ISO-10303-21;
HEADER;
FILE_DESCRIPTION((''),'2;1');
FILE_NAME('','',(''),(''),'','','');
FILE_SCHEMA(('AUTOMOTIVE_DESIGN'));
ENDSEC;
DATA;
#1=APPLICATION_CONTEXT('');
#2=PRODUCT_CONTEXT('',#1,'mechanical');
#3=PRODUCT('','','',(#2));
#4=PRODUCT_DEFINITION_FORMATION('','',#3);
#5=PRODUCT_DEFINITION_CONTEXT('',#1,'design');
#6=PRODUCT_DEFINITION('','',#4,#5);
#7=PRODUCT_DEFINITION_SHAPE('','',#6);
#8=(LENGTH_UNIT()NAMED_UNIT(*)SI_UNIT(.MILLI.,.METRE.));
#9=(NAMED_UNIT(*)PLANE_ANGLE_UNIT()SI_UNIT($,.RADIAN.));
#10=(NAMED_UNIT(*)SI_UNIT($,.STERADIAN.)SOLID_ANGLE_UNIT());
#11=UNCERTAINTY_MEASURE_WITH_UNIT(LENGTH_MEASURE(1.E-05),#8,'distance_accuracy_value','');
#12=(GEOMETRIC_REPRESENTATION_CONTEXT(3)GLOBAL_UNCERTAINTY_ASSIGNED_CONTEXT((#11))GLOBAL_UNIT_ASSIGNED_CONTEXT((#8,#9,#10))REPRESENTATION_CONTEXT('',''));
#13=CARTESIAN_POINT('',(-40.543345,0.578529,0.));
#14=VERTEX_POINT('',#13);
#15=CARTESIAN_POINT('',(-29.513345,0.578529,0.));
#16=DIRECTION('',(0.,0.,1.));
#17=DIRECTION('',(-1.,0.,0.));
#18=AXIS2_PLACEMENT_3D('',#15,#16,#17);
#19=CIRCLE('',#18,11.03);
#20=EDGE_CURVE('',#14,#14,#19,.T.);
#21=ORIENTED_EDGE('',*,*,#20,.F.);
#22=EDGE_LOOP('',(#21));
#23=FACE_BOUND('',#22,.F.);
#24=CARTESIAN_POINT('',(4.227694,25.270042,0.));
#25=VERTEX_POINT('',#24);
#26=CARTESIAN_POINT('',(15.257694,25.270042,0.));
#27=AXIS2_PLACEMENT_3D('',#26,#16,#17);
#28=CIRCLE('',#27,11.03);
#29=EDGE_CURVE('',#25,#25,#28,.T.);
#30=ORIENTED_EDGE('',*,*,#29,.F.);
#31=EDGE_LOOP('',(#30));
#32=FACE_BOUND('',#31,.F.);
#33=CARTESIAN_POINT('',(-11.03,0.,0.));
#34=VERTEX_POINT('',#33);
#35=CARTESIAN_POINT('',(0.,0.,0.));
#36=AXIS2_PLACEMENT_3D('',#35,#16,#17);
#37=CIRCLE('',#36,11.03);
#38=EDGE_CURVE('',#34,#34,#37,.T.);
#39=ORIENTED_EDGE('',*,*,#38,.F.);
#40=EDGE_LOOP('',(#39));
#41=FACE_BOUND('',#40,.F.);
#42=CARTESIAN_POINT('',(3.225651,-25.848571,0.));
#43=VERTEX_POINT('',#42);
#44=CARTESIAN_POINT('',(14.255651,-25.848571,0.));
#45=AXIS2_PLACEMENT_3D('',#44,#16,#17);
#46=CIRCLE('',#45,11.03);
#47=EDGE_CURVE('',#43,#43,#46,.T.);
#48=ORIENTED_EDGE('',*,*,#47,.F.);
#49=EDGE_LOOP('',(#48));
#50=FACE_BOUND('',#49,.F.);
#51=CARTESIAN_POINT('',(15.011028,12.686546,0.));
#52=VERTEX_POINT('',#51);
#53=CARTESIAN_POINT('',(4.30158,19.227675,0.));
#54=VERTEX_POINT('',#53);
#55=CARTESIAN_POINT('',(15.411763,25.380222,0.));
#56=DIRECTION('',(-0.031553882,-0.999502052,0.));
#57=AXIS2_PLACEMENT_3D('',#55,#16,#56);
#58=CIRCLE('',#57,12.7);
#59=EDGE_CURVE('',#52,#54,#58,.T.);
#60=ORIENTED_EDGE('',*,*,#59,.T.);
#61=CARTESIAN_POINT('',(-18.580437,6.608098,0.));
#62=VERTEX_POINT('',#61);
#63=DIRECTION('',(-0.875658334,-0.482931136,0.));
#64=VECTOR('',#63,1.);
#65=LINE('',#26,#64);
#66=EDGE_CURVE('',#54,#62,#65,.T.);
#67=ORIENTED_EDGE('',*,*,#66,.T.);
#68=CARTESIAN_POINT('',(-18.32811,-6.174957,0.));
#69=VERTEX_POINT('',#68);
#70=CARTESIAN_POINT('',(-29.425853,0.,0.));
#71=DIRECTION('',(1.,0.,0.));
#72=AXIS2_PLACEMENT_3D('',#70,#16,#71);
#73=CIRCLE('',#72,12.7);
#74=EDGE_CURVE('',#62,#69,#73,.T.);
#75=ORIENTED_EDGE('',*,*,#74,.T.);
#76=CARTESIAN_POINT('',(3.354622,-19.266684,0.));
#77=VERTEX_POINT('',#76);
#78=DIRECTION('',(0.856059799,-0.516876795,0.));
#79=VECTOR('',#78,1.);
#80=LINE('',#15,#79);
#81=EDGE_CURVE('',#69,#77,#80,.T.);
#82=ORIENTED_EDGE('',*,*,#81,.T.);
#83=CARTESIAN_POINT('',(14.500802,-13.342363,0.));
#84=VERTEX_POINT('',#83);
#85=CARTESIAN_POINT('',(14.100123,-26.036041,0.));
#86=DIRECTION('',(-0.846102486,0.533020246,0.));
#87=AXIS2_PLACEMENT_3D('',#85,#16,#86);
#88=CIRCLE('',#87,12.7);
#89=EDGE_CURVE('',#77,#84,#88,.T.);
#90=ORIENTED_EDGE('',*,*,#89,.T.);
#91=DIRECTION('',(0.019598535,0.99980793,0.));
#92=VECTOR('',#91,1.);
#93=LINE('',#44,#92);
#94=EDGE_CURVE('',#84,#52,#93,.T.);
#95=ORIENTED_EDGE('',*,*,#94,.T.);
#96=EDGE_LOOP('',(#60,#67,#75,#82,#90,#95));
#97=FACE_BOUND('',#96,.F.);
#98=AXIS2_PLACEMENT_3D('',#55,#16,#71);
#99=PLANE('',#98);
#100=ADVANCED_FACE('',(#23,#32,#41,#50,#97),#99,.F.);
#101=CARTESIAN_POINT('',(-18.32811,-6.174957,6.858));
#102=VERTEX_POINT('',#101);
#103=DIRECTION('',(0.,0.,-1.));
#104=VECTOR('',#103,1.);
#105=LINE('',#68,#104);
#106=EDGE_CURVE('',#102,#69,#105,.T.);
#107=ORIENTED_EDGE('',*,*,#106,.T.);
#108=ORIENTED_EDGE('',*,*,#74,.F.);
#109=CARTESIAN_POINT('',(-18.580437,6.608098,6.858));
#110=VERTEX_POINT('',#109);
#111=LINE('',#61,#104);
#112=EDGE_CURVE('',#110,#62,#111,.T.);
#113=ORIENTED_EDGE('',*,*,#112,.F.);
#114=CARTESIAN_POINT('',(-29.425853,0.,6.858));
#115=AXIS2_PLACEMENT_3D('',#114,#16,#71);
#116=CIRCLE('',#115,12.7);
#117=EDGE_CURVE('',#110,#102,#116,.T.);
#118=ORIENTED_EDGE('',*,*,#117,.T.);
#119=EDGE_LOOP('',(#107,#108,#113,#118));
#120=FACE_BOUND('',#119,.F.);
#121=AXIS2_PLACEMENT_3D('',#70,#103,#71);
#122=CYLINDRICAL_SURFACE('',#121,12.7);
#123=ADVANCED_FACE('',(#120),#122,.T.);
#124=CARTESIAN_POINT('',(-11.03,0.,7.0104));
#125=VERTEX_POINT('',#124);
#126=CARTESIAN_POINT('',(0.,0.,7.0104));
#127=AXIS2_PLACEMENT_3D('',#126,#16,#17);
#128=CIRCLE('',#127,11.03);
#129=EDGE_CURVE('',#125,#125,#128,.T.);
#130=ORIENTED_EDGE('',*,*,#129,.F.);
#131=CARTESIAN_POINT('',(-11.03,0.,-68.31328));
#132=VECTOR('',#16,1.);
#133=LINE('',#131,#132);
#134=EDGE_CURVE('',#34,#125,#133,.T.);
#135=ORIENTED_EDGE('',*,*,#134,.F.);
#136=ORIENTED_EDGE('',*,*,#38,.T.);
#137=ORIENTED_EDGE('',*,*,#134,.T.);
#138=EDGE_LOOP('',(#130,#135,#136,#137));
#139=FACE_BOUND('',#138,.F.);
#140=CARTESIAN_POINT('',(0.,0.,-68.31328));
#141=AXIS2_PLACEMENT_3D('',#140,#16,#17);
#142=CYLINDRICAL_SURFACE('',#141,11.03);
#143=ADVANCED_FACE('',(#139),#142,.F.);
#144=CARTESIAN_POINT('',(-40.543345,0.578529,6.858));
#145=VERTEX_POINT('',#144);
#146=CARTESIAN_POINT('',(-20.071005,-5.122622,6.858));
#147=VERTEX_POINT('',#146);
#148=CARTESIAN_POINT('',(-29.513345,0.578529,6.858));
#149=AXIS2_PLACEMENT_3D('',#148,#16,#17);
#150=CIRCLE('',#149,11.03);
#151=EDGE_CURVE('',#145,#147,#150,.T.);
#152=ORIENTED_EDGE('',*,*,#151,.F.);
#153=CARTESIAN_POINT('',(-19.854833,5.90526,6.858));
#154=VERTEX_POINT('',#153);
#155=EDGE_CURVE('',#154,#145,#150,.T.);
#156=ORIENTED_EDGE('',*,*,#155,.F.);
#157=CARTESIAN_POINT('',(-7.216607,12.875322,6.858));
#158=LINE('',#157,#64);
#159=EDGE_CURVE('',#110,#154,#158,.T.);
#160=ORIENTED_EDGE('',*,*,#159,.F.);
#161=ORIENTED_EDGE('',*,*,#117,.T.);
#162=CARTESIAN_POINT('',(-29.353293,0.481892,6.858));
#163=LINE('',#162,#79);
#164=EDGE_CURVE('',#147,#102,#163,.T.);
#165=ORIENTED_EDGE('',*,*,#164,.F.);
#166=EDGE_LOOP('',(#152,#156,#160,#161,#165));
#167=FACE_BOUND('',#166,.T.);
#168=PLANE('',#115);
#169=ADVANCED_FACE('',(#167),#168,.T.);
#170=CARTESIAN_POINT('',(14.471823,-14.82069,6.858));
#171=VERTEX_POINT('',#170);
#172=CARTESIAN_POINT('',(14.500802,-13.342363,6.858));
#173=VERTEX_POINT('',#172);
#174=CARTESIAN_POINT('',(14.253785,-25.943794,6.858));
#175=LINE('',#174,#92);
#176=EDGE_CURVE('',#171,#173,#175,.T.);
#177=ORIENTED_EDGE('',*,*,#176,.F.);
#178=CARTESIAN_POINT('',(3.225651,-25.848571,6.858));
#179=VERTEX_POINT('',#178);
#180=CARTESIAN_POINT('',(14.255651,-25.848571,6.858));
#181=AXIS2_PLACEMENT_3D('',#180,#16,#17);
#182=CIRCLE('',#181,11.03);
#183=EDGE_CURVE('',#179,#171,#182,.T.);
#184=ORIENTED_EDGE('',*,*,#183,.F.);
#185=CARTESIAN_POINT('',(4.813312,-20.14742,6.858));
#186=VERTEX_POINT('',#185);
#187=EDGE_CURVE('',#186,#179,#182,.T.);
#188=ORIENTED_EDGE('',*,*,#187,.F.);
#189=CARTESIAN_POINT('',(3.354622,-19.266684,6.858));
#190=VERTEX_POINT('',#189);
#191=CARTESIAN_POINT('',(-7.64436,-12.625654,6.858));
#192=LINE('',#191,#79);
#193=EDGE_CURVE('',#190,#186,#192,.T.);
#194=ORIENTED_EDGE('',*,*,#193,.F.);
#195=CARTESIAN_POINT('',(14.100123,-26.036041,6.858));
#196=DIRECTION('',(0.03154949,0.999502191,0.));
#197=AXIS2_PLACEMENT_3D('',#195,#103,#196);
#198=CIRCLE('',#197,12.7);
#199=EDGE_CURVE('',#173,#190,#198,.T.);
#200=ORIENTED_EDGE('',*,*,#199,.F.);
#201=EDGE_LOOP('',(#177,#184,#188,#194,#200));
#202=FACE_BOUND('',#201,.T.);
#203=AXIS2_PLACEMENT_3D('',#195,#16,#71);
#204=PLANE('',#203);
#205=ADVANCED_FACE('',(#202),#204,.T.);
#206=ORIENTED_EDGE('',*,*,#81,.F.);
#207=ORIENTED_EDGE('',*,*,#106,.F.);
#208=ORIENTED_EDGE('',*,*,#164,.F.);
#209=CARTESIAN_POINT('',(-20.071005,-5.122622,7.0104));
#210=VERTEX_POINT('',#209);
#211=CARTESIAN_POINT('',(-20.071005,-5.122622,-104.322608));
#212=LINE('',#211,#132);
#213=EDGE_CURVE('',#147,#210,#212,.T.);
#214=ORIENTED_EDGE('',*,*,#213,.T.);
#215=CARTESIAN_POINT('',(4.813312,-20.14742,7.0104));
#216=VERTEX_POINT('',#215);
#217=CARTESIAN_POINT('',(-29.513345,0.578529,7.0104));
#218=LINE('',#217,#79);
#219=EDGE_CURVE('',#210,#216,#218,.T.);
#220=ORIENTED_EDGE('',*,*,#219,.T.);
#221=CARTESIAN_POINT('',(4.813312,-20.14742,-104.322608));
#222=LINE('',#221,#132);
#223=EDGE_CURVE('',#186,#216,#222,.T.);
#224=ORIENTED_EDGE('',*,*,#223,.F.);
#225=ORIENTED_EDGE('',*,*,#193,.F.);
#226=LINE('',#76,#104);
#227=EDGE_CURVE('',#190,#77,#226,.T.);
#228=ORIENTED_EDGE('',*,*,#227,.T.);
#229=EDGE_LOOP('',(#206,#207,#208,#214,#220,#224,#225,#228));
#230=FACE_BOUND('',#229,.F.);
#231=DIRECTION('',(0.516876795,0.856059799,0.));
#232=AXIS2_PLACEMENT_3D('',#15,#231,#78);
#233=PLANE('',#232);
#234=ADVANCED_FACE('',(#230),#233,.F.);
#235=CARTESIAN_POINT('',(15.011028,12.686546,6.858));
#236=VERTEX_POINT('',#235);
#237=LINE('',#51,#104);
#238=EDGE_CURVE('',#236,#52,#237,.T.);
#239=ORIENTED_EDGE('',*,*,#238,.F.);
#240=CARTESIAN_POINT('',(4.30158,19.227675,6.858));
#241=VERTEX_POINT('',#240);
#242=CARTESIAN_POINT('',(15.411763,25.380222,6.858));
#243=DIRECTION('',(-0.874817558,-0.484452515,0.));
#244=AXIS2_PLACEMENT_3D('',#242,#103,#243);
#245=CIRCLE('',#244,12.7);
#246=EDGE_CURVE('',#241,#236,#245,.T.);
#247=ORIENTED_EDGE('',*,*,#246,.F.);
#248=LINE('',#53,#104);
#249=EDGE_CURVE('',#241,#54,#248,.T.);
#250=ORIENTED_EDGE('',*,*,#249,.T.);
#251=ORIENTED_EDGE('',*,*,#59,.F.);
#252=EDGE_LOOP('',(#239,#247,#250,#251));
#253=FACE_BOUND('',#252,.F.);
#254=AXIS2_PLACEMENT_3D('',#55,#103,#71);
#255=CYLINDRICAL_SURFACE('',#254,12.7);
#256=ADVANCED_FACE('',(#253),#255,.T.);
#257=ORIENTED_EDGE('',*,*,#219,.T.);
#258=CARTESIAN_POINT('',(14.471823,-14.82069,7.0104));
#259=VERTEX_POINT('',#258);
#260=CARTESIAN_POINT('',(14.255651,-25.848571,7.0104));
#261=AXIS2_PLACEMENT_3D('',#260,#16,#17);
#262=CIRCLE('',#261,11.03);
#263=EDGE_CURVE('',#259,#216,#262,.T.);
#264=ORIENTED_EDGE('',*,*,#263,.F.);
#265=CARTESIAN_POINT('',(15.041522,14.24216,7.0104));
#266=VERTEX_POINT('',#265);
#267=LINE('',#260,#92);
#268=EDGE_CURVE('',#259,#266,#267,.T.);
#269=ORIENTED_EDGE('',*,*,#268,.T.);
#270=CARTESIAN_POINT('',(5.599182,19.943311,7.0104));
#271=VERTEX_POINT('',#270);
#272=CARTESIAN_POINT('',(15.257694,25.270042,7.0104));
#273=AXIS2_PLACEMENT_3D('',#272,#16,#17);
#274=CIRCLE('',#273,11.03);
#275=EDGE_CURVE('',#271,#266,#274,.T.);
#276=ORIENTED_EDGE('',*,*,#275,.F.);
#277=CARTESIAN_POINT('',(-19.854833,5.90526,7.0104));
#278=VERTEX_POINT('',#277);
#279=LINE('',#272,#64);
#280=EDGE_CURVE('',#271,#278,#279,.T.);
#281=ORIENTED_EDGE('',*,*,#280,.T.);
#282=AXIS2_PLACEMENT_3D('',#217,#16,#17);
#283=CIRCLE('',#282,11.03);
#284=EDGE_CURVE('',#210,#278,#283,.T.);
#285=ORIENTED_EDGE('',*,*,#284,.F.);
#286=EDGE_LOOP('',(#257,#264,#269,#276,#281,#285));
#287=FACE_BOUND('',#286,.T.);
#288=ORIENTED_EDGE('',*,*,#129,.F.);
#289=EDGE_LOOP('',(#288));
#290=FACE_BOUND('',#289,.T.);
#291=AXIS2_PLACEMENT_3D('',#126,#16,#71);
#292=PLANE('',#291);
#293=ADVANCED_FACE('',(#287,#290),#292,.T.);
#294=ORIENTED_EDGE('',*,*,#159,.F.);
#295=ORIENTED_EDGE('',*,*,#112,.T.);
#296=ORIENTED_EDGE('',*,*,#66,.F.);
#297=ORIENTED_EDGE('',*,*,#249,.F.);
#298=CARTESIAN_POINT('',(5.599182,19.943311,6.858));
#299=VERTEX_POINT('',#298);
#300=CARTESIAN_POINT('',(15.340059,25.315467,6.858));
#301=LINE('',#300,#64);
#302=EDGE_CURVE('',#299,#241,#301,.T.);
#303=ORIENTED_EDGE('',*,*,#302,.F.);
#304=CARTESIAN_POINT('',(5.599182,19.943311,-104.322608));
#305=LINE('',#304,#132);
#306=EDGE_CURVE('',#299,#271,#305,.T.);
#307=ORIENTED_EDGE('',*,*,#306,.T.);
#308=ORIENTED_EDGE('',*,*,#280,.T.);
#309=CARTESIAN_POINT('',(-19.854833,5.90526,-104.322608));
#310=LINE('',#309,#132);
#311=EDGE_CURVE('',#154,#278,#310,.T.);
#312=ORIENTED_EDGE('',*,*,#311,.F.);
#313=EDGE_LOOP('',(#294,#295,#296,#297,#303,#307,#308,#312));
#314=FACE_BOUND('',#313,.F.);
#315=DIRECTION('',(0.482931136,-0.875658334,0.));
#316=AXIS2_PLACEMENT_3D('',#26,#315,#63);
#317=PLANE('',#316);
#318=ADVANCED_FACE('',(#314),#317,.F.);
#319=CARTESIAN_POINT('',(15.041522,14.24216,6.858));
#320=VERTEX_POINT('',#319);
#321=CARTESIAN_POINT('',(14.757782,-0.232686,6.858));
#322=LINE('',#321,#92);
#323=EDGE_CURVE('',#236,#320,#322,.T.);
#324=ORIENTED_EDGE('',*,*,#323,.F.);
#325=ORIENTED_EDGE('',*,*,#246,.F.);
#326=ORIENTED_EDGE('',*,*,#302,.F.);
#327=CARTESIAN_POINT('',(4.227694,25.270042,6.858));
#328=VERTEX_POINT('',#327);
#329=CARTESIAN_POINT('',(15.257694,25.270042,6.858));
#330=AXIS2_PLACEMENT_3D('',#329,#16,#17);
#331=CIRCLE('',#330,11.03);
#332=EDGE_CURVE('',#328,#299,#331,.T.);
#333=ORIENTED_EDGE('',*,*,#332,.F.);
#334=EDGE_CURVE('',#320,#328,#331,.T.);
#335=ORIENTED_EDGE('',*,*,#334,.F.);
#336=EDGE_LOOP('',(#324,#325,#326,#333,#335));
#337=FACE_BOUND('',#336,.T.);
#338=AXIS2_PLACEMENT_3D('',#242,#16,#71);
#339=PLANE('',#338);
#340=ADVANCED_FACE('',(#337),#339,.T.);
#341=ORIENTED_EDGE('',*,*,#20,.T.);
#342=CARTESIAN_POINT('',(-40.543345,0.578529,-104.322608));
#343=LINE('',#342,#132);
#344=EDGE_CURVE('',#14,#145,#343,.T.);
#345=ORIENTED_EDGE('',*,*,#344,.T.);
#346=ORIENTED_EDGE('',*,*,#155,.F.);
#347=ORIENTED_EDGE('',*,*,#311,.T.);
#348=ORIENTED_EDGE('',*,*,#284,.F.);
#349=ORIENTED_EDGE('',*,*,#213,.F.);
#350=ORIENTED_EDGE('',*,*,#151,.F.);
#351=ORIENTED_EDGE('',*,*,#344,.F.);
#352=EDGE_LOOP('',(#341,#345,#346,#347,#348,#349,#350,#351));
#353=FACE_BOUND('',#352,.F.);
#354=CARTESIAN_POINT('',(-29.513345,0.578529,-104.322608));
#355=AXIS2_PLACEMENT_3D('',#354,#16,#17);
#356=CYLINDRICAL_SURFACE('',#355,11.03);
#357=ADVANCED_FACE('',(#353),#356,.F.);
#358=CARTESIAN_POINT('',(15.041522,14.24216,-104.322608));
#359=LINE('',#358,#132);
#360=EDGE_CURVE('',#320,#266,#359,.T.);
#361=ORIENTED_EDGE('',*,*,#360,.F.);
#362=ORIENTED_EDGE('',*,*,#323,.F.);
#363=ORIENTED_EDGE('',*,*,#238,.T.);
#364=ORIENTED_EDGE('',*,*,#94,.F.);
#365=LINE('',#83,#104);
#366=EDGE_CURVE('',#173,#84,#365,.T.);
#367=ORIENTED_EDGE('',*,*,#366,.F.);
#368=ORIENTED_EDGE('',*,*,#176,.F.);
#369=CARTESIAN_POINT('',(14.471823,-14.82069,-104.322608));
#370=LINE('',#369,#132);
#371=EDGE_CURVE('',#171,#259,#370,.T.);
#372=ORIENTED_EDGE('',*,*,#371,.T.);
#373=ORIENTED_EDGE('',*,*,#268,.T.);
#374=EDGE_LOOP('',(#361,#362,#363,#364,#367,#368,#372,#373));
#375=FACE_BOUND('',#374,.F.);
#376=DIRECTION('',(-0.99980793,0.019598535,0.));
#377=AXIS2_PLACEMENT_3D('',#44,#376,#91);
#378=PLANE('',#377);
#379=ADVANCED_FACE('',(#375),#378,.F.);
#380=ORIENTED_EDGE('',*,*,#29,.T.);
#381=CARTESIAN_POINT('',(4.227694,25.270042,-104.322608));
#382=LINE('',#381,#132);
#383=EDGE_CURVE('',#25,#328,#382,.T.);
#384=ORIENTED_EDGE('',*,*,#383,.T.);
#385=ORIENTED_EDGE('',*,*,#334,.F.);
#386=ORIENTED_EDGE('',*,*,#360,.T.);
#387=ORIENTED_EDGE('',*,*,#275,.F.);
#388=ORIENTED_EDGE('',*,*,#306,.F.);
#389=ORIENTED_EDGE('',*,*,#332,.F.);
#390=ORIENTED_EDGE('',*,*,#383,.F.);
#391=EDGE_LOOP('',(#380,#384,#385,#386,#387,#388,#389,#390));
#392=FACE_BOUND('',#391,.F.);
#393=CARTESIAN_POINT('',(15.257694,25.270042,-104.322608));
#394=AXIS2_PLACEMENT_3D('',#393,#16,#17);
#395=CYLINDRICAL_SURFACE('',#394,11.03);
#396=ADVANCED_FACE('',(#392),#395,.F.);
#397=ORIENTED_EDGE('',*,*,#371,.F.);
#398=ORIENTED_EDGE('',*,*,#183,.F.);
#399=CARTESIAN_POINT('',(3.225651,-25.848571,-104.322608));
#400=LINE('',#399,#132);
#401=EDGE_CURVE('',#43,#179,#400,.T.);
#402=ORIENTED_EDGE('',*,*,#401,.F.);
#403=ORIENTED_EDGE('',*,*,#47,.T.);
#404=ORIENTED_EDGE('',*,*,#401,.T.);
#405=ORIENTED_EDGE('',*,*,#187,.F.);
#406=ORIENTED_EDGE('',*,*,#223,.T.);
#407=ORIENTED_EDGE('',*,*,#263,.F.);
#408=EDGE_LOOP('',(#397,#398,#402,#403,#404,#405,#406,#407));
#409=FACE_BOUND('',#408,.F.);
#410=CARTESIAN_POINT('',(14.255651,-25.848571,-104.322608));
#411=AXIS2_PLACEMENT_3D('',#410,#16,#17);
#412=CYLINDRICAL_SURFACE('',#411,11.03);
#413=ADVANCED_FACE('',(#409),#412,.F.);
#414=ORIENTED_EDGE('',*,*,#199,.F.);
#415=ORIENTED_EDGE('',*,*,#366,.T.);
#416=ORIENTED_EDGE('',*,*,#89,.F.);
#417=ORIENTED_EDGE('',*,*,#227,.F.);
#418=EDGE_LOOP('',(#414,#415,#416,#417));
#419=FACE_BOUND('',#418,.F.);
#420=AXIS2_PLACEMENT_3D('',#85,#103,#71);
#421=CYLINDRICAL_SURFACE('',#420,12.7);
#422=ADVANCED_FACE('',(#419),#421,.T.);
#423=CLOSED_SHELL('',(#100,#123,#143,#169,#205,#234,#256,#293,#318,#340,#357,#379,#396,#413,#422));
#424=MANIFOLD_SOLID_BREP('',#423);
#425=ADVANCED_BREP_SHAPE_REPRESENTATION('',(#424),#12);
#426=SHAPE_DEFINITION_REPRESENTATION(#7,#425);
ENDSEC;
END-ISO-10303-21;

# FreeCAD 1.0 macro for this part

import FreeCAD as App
import Part
import Sketcher
from FreeCAD import Vector
Q = App.Units.Quantity


def add_polygon(sketch, points):
    """Adds a closed chain of lines whose ends are joined by coincident constraints."""
    first, n = sketch.GeometryCount, len(points)
    for a, b in zip(points, points[1:] + points[:1]):
        sketch.addGeometry(Part.LineSegment(App.Vector(*a, 0), App.Vector(*b, 0)), False)
    for i in range(n):
        sketch.addConstraint(Sketcher.Constraint("Coincident", first + i, 2, first + (i + 1) % n, 1))

doc = App.newDocument("Part")
body = doc.addObject("PartDesign::Body", "Body")

sketch1 = body.newObject("Sketcher::SketchObject", "Sketch")
sketch1.AttachmentSupport = (doc.getObject("XY_Plane"), [""])
sketch1.MapMode = "FlatFace"
add_polygon(sketch1, [(15, 25), (-30, 1), (14, -26)])
sketch1.addConstraint([
    Sketcher.Constraint("Equal", 0, 1),
    Sketcher.Constraint("Equal", 1, 2),
    Sketcher.Constraint("DistanceY", 1, 2, 0, 2, Q("26.427101 mm")),
    Sketcher.Constraint("DistanceY", -1, 1, 0, 2, Q("0.578529 mm")),
    Sketcher.Constraint("DistanceX", -1, 1, 1, 2, Q("14.255651 mm")),
    Sketcher.Constraint("DistanceY", -1, 1, 2, 2, Q("25.270042 mm")),
])
pad1 = body.newObject("PartDesign::Pad", "Pad")
pad1.Profile = sketch1
pad1.Length = Q("0.276 in")

sketch2 = body.newObject("Sketcher::SketchObject", "Sketch001")
sketch2.AttachmentSupport = (doc.getObject("XY_Plane"), [""])
sketch2.MapMode = "FlatFace"
sketch2.addGeometry(Part.Circle(Vector(0, 0, 0), Vector(0, 0, 1), 11), False)
sketch2.addConstraint([
    Sketcher.Constraint("Coincident", 0, 3, -1, 1),
    Sketcher.Constraint("Diameter", 0, Q("22.06 mm")),
])
doc.recompute()
hole = body.newObject("PartDesign::Hole", "Hole")
hole.Profile = sketch2
hole.ThreadType = "None"
hole.Diameter = 22.06
hole.DepthType = "ThroughAll"
hole.Reversed = True

sketch3 = body.newObject("Sketcher::SketchObject", "Sketch002")
sketch3.AttachmentSupport = (doc.getObject("XY_Plane"), [""])
sketch3.MapMode = "FlatFace"
sketch3.addGeometry(Part.Circle(Vector(14, -26, 0), Vector(0, 0, 1), 13), False)
sketch3.addConstraint([
    Sketcher.Constraint("Diameter", 0, Q("1 in")),
    Sketcher.Constraint("DistanceY", 0, 3, -1, 1, Q("26.036041 mm")),
    Sketcher.Constraint("DistanceX", -1, 1, 0, 3, Q("14.100123 mm")),
])
pad2 = body.newObject("PartDesign::Pad", "Pad001")
pad2.Profile = sketch3
pad2.Length = Q("0.27 in")

sketch4 = body.newObject("Sketcher::SketchObject", "Sketch003")
sketch4.AttachmentSupport = (doc.getObject("XY_Plane"), [""])
sketch4.MapMode = "FlatFace"
sketch4.addGeometry(Part.Circle(Vector(15, 25, 0), Vector(0, 0, 1), 13), False)
sketch4.addConstraint([
    Sketcher.Constraint("Diameter", 0, Q("1 in")),
    Sketcher.Constraint("DistanceX", -1, 1, 0, 3, Q("15.411763 mm")),
    Sketcher.Constraint("DistanceY", -1, 1, 0, 3, Q("25.380222 mm")),
])
pad3 = body.newObject("PartDesign::Pad", "Pad002")
pad3.Profile = sketch4
pad3.Length = Q("0.27 in")

sketch5 = body.newObject("Sketcher::SketchObject", "Sketch004")
sketch5.AttachmentSupport = (doc.getObject("XY_Plane"), [""])
sketch5.MapMode = "FlatFace"
sketch5.addGeometry(Part.Circle(Vector(-29, 0, 0), Vector(0, 0, 1), 13), False)
sketch5.addConstraint([
    Sketcher.Constraint("PointOnObject", 0, 3, -1),
    Sketcher.Constraint("Diameter", 0, Q("1 in")),
    Sketcher.Constraint("DistanceX", 0, 3, -1, 1, Q("29.425853 mm")),
])
pad4 = body.newObject("PartDesign::Pad", "Pad003")
pad4.Profile = sketch5
pad4.Length = Q("0.27 in")

sketch6 = body.newObject("Sketcher::SketchObject", "Sketch005")
sketch6.AttachmentSupport = (doc.getObject("XY_Plane"), [""])
sketch6.MapMode = "FlatFace"
sketch6.addGeometry(Part.Circle(Vector(15, 25, 0), Vector(0, 0, 1), 11), False)
sketch6.addConstraint([
    Sketcher.Constraint("Diameter", 0, Q("22.06 mm")),
    Sketcher.Constraint("DistanceY", -1, 1, 0, 3, Q("25.270042 mm")),
    Sketcher.Constraint("DistanceX", -1, 1, 0, 3, Q("15.257694 mm")),
])
doc.recompute()
hole2 = body.newObject("PartDesign::Hole", "Hole001")
hole2.Profile = sketch6
hole2.ThreadType = "None"
hole2.Diameter = 22.06
hole2.DepthType = "ThroughAll"
hole2.Reversed = True

sketch7 = body.newObject("Sketcher::SketchObject", "Sketch006")
sketch7.AttachmentSupport = (doc.getObject("XY_Plane"), [""])
sketch7.MapMode = "FlatFace"
sketch7.addGeometry(Part.Circle(Vector(14, -26, 0), Vector(0, 0, 1), 11), False)
sketch7.addConstraint([
    Sketcher.Constraint("Diameter", 0, Q("22.06 mm")),
    Sketcher.Constraint("DistanceX", -1, 1, 0, 3, Q("14.255651 mm")),
    Sketcher.Constraint("DistanceY", 0, 3, -1, 1, Q("25.848571 mm")),
])
doc.recompute()
hole3 = body.newObject("PartDesign::Hole", "Hole002")
hole3.Profile = sketch7
hole3.ThreadType = "None"
hole3.Diameter = 22.06
hole3.DepthType = "ThroughAll"
hole3.Reversed = True

sketch8 = body.newObject("Sketcher::SketchObject", "Sketch007")
sketch8.AttachmentSupport = (doc.getObject("XY_Plane"), [""])
sketch8.MapMode = "FlatFace"
sketch8.addGeometry(Part.Circle(Vector(-30, 1, 0), Vector(0, 0, 1), 11), False)
sketch8.addConstraint([
    Sketcher.Constraint("Diameter", 0, Q("22.06 mm")),
    Sketcher.Constraint("DistanceY", -1, 1, 0, 3, Q("0.578529 mm")),
    Sketcher.Constraint("DistanceX", 0, 3, -1, 1, Q("29.513345 mm")),
])
doc.recompute()
hole4 = body.newObject("PartDesign::Hole", "Hole003")
hole4.Profile = sketch8
hole4.ThreadType = "None"
hole4.Diameter = 22.06
hole4.DepthType = "ThroughAll"
hole4.Reversed = True

doc.recompute()
